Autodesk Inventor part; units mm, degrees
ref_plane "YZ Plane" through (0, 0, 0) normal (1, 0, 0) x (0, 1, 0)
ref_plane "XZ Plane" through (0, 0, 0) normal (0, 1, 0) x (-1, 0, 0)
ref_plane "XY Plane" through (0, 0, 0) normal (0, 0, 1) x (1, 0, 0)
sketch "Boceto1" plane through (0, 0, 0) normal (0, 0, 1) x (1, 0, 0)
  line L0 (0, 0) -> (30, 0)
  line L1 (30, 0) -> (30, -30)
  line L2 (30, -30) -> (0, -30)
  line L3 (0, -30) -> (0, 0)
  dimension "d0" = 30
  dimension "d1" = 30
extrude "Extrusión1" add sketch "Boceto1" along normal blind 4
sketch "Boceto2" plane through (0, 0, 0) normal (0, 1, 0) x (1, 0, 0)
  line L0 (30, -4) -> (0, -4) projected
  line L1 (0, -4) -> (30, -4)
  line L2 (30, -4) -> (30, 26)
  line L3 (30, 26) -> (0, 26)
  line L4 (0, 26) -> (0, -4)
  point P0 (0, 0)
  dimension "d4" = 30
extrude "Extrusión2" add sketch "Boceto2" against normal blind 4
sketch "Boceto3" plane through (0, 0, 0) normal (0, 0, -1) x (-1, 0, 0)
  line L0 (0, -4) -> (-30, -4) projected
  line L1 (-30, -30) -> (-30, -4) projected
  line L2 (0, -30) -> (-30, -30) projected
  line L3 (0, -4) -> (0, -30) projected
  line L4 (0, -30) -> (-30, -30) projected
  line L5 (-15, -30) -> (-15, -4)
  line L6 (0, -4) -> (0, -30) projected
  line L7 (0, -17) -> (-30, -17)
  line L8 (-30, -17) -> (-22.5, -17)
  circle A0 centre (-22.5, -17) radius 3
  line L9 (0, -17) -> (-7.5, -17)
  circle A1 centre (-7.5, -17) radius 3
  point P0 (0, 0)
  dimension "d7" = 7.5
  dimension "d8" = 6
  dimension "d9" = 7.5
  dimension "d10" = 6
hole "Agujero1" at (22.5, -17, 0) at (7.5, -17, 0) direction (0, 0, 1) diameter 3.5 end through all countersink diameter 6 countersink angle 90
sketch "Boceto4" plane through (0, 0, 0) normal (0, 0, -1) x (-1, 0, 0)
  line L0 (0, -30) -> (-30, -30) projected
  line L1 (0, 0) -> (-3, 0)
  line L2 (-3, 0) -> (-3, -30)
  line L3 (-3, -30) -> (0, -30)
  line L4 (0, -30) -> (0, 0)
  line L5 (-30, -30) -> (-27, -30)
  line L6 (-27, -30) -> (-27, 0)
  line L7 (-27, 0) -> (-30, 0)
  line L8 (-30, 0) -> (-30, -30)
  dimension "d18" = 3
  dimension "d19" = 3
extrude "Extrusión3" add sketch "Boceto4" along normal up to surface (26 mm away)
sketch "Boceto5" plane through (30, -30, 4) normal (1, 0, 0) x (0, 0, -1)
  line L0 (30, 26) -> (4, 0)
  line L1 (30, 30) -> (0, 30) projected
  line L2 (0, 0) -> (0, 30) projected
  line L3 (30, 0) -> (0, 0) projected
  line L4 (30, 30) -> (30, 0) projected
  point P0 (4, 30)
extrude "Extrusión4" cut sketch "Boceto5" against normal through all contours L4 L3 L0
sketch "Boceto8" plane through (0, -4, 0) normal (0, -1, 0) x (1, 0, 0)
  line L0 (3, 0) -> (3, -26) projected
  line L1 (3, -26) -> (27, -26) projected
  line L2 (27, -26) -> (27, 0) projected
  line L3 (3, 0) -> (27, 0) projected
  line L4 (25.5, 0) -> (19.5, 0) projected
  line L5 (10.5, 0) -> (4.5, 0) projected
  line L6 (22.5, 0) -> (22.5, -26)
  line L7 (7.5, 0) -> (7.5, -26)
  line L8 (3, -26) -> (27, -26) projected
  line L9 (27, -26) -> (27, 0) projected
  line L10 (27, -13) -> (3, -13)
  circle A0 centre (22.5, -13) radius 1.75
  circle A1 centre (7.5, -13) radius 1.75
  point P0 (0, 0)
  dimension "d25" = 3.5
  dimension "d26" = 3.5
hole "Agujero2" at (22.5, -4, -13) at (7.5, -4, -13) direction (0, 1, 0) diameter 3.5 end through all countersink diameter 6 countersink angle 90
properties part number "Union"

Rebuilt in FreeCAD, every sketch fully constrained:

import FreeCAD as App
import Part
import Sketcher
from FreeCAD import Vector
Q = App.Units.Quantity

doc = App.newDocument("Part")
params = doc.addObject("Spreadsheet::Sheet", "Params")
for row, (alias, value) in enumerate([
    ("sketch1_width", "30 mm"),
    ("pad1_length", "4 mm"),
    ("sketch2_width", "30 mm"),
    ("pad2_length", "4 mm"),
    ("sketch3_diameter", "3.5 mm"),
    ("hole_diameter", "3.5 mm"),
    ("hole_csink_diameter", "6 mm"),
    ("sketch4_width", "3 mm"),
    ("sketch4_height", "30 mm"),
    ("pad3_length", "26 mm"),
    ("sketch5_width", "26 mm"),
    ("sketch6_diameter", "3.5 mm"),
    ("hole2_diameter", "3.5 mm"),
    ("hole2_csink_diameter", "6 mm"),
], start=1):
    params.set(f"A{row}", alias)
    params.set(f"B{row}", "=" + value)
    params.setAlias(f"B{row}", alias)

body = doc.addObject("PartDesign::Body", "Body")

# Sketch on XY plane
sketch1 = doc.addObject("Sketcher::SketchObject", "Sketch")
body.addObject(sketch1)
sketch1.AttachmentSupport = (doc.XY_Plane, [""])
sketch1.MapMode = "FlatFace"
sketch1.addGeometry(Part.LineSegment(Vector(30, 0, 0), Vector(0, 0, 0)), False)
sketch1.addGeometry(Part.LineSegment(Vector(0, 0, 0), Vector(0, -30, 0)), False)
sketch1.addGeometry(Part.LineSegment(Vector(0, -30, 0), Vector(30, -30, 0)), False)
sketch1.addGeometry(Part.LineSegment(Vector(30, -30, 0), Vector(30, 0, 0)), False)
sketch1.addConstraint(Sketcher.Constraint("Coincident", 0, 2, 1, 1))
sketch1.addConstraint(Sketcher.Constraint("Coincident", 1, 2, 2, 1))
sketch1.addConstraint(Sketcher.Constraint("Coincident", 2, 2, 3, 1))
sketch1.addConstraint(Sketcher.Constraint("Coincident", 3, 2, 0, 1))
sketch1.addConstraint(Sketcher.Constraint("Horizontal", 0))
sketch1.addConstraint(Sketcher.Constraint("Vertical", 1))
sketch1.addConstraint(Sketcher.Constraint("Horizontal", 2))
sketch1.addConstraint(Sketcher.Constraint("Vertical", 3))
sketch1.addConstraint(Sketcher.Constraint("Coincident", 0, 2, -1, 1))
sketch1.addConstraint(Sketcher.Constraint("Equal", 2, 1))
sketch1.addConstraint(Sketcher.Constraint("DistanceX", 0, 2, 0, 1, Q("30 mm")))
sketch1.setExpression("Constraints[10]", "Params.sketch1_width")
pad1 = doc.addObject("PartDesign::Pad", "Pad")
body.addObject(pad1)
pad1.Profile = sketch1
pad1.setExpression("Length", "Params.pad1_length")

# Sketch on XZ plane
sketch2 = doc.addObject("Sketcher::SketchObject", "Sketch001")
body.addObject(sketch2)
sketch2.AttachmentSupport = (doc.XZ_Plane, [""])
sketch2.MapMode = "FlatFace"
sketch2.addGeometry(Part.LineSegment(Vector(0, 4, 0), Vector(30, 4, 0)), False)
sketch2.addGeometry(Part.LineSegment(Vector(30, 4, 0), Vector(30, -26, 0)), False)
sketch2.addGeometry(Part.LineSegment(Vector(30, -26, 0), Vector(0, -26, 0)), False)
sketch2.addGeometry(Part.LineSegment(Vector(0, -26, 0), Vector(0, 4, 0)), False)
sketch2.addConstraint(Sketcher.Constraint("Coincident", 0, 2, 1, 1))
sketch2.addConstraint(Sketcher.Constraint("Coincident", 1, 2, 2, 1))
sketch2.addConstraint(Sketcher.Constraint("Coincident", 2, 2, 3, 1))
sketch2.addConstraint(Sketcher.Constraint("Coincident", 3, 2, 0, 1))
sketch2.addConstraint(Sketcher.Constraint("Horizontal", 0))
sketch2.addConstraint(Sketcher.Constraint("Vertical", 1))
sketch2.addConstraint(Sketcher.Constraint("Horizontal", 2))
sketch2.addConstraint(Sketcher.Constraint("Vertical", 3))
sketch2.addConstraint(Sketcher.Constraint("PointOnObject", 2, 2, -2))
sketch2.addConstraint(Sketcher.Constraint("Equal", 2, 1))
sketch2.addConstraint(Sketcher.Constraint("DistanceX", 0, 1, 0, 2, Q("30 mm")))
sketch2.addConstraint(Sketcher.Constraint("DistanceY", -1, 1, 0, 2, Q("4 mm")))
sketch2.setExpression("Constraints[10]", "Params.sketch2_width")
pad2 = doc.addObject("PartDesign::Pad", "Pad001")
body.addObject(pad2)
pad2.Profile = sketch2
pad2.setExpression("Length", "Params.pad2_length")

# Sketch on XY plane
sketch3 = doc.addObject("Sketcher::SketchObject", "Sketch002")
body.addObject(sketch3)
sketch3.AttachmentSupport = (doc.XY_Plane, [""])
sketch3.MapMode = "FlatFace"
sketch3.addGeometry(Part.Circle(Vector(22.5, -17, 0), Vector(0, 0, 1), 1.75), False)
sketch3.addGeometry(Part.Circle(Vector(7.5, -17, 0), Vector(0, 0, 1), 1.75), False)
sketch3.addConstraint(Sketcher.Constraint("Equal", 0, 1))
sketch3.addConstraint(Sketcher.Constraint("Horizontal", 0, 3, 1, 3))
sketch3.addConstraint(Sketcher.Constraint("Diameter", 0, Q("3.5 mm")))
sketch3.addConstraint(Sketcher.Constraint("DistanceY", 0, 3, -1, 1, Q("17 mm")))
sketch3.addConstraint(Sketcher.Constraint("DistanceX", 1, 3, 0, 3, Q("15 mm")))
sketch3.addConstraint(Sketcher.Constraint("DistanceX", -1, 1, 0, 3, Q("22.5 mm")))
sketch3.setExpression("Constraints[2]", "Params.sketch3_diameter")
doc.recompute()
hole = doc.addObject("PartDesign::Hole", "Hole")
body.addObject(hole)
hole.Profile = sketch3
hole.ThreadType = "None"
hole.setExpression("Diameter", "Params.hole_diameter")
hole.DepthType = "ThroughAll"
hole.HoleCutType = "Countersink"
hole.setExpression("HoleCutDiameter", "Params.hole_csink_diameter")
hole.HoleCutCountersinkAngle = 90
hole.Reversed = True

# Sketch on XY plane
sketch4 = doc.addObject("Sketcher::SketchObject", "Sketch003")
body.addObject(sketch4)
sketch4.AttachmentSupport = (doc.XY_Plane, [""])
sketch4.MapMode = "FlatFace"
sketch4.addGeometry(Part.LineSegment(Vector(30, -30, 0), Vector(27, -30, 0)), False)
sketch4.addGeometry(Part.LineSegment(Vector(27, -30, 0), Vector(27, 0, 0)), False)
sketch4.addGeometry(Part.LineSegment(Vector(27, 0, 0), Vector(30, 0, 0)), False)
sketch4.addGeometry(Part.LineSegment(Vector(30, 0, 0), Vector(30, -30, 0)), False)
sketch4.addGeometry(Part.LineSegment(Vector(3, -30, 0), Vector(0, -30, 0)), False)
sketch4.addGeometry(Part.LineSegment(Vector(0, -30, 0), Vector(0, 0, 0)), False)
sketch4.addGeometry(Part.LineSegment(Vector(0, 0, 0), Vector(3, 0, 0)), False)
sketch4.addGeometry(Part.LineSegment(Vector(3, 0, 0), Vector(3, -30, 0)), False)
sketch4.addConstraint(Sketcher.Constraint("Coincident", 0, 2, 1, 1))
sketch4.addConstraint(Sketcher.Constraint("Coincident", 1, 2, 2, 1))
sketch4.addConstraint(Sketcher.Constraint("Coincident", 2, 2, 3, 1))
sketch4.addConstraint(Sketcher.Constraint("Coincident", 3, 2, 0, 1))
sketch4.addConstraint(Sketcher.Constraint("Coincident", 4, 2, 5, 1))
sketch4.addConstraint(Sketcher.Constraint("Coincident", 5, 2, 6, 1))
sketch4.addConstraint(Sketcher.Constraint("Coincident", 6, 2, 7, 1))
sketch4.addConstraint(Sketcher.Constraint("Coincident", 7, 2, 4, 1))
sketch4.addConstraint(Sketcher.Constraint("Horizontal", 0))
sketch4.addConstraint(Sketcher.Constraint("Vertical", 1))
sketch4.addConstraint(Sketcher.Constraint("Horizontal", 2))
sketch4.addConstraint(Sketcher.Constraint("Vertical", 3))
sketch4.addConstraint(Sketcher.Constraint("Horizontal", 4))
sketch4.addConstraint(Sketcher.Constraint("Vertical", 5))
sketch4.addConstraint(Sketcher.Constraint("Horizontal", 6))
sketch4.addConstraint(Sketcher.Constraint("Vertical", 7))
sketch4.addConstraint(Sketcher.Constraint("Coincident", 5, 2, -1, 1))
sketch4.addConstraint(Sketcher.Constraint("PointOnObject", 1, 2, -1))
sketch4.addConstraint(Sketcher.Constraint("Horizontal", 3, 2, 4, 2))
sketch4.addConstraint(Sketcher.Constraint("Equal", 2, 4))
sketch4.addConstraint(Sketcher.Constraint("DistanceX", 0, 2, 0, 1, Q("3 mm")))
sketch4.addConstraint(Sketcher.Constraint("DistanceY", 1, 1, 1, 2, Q("30 mm")))
sketch4.addConstraint(Sketcher.Constraint("DistanceX", -1, 1, 0, 2, Q("27 mm")))
sketch4.setExpression("Constraints[20]", "Params.sketch4_width")
sketch4.setExpression("Constraints[21]", "Params.sketch4_height")
pad3 = doc.addObject("PartDesign::Pad", "Pad002")
body.addObject(pad3)
pad3.Profile = sketch4
pad3.setExpression("Length", "Params.pad3_length")
pad3.Reversed = True

# Sketch on YZ plane
sketch5 = doc.addObject("Sketcher::SketchObject", "Sketch004")
body.addObject(sketch5)
sketch5.AttachmentSupport = (doc.YZ_Plane, [""])
sketch5.MapMode = "FlatFace"
sketch5.AttachmentOffset = App.Placement(Vector(0, 0, 30), App.Rotation())
sketch5.addGeometry(Part.LineSegment(Vector(-30, -26, 0), Vector(-4, -26, 0)), False)
sketch5.addGeometry(Part.LineSegment(Vector(-4, -26, 0), Vector(-30, 0, 0)), False)
sketch5.addGeometry(Part.LineSegment(Vector(-30, 0, 0), Vector(-30, -26, 0)), False)
sketch5.addConstraint(Sketcher.Constraint("Coincident", 0, 2, 1, 1))
sketch5.addConstraint(Sketcher.Constraint("Coincident", 1, 2, 2, 1))
sketch5.addConstraint(Sketcher.Constraint("Coincident", 2, 2, 0, 1))
sketch5.addConstraint(Sketcher.Constraint("Horizontal", 0))
sketch5.addConstraint(Sketcher.Constraint("Vertical", 2))
sketch5.addConstraint(Sketcher.Constraint("PointOnObject", 1, 2, -1))
sketch5.addConstraint(Sketcher.Constraint("Equal", 0, 2))
sketch5.addConstraint(Sketcher.Constraint("DistanceX", 0, 1, 0, 2, Q("26 mm")))
sketch5.addConstraint(Sketcher.Constraint("DistanceX", 0, 2, -1, 1, Q("4 mm")))
sketch5.setExpression("Constraints[7]", "Params.sketch5_width")
pocket1 = doc.addObject("PartDesign::Pocket", "Pocket")
body.addObject(pocket1)
pocket1.Profile = sketch5
pocket1.Type = "ThroughAll"

# Sketch on XZ plane
sketch6 = doc.addObject("Sketcher::SketchObject", "Sketch005")
body.addObject(sketch6)
sketch6.AttachmentSupport = (doc.XZ_Plane, [""])
sketch6.MapMode = "FlatFace"
sketch6.AttachmentOffset = App.Placement(Vector(0, 0, 4), App.Rotation())
sketch6.addGeometry(Part.Circle(Vector(22.5, -13, 0), Vector(0, 0, 1), 1.75), False)
sketch6.addGeometry(Part.Circle(Vector(7.5, -13, 0), Vector(0, 0, 1), 1.75), False)
sketch6.addConstraint(Sketcher.Constraint("Equal", 0, 1))
sketch6.addConstraint(Sketcher.Constraint("Horizontal", 0, 3, 1, 3))
sketch6.addConstraint(Sketcher.Constraint("Diameter", 0, Q("3.5 mm")))
sketch6.addConstraint(Sketcher.Constraint("DistanceY", 0, 3, -1, 1, Q("13 mm")))
sketch6.addConstraint(Sketcher.Constraint("DistanceX", 1, 3, 0, 3, Q("15 mm")))
sketch6.addConstraint(Sketcher.Constraint("DistanceX", -1, 1, 0, 3, Q("22.5 mm")))
sketch6.setExpression("Constraints[2]", "Params.sketch6_diameter")
doc.recompute()
hole2 = doc.addObject("PartDesign::Hole", "Hole001")
body.addObject(hole2)
hole2.Profile = sketch6
hole2.ThreadType = "None"
hole2.setExpression("Diameter", "Params.hole2_diameter")
hole2.DepthType = "ThroughAll"
hole2.HoleCutType = "Countersink"
hole2.setExpression("HoleCutDiameter", "Params.hole2_csink_diameter")
hole2.HoleCutCountersinkAngle = 90

doc.recompute()
